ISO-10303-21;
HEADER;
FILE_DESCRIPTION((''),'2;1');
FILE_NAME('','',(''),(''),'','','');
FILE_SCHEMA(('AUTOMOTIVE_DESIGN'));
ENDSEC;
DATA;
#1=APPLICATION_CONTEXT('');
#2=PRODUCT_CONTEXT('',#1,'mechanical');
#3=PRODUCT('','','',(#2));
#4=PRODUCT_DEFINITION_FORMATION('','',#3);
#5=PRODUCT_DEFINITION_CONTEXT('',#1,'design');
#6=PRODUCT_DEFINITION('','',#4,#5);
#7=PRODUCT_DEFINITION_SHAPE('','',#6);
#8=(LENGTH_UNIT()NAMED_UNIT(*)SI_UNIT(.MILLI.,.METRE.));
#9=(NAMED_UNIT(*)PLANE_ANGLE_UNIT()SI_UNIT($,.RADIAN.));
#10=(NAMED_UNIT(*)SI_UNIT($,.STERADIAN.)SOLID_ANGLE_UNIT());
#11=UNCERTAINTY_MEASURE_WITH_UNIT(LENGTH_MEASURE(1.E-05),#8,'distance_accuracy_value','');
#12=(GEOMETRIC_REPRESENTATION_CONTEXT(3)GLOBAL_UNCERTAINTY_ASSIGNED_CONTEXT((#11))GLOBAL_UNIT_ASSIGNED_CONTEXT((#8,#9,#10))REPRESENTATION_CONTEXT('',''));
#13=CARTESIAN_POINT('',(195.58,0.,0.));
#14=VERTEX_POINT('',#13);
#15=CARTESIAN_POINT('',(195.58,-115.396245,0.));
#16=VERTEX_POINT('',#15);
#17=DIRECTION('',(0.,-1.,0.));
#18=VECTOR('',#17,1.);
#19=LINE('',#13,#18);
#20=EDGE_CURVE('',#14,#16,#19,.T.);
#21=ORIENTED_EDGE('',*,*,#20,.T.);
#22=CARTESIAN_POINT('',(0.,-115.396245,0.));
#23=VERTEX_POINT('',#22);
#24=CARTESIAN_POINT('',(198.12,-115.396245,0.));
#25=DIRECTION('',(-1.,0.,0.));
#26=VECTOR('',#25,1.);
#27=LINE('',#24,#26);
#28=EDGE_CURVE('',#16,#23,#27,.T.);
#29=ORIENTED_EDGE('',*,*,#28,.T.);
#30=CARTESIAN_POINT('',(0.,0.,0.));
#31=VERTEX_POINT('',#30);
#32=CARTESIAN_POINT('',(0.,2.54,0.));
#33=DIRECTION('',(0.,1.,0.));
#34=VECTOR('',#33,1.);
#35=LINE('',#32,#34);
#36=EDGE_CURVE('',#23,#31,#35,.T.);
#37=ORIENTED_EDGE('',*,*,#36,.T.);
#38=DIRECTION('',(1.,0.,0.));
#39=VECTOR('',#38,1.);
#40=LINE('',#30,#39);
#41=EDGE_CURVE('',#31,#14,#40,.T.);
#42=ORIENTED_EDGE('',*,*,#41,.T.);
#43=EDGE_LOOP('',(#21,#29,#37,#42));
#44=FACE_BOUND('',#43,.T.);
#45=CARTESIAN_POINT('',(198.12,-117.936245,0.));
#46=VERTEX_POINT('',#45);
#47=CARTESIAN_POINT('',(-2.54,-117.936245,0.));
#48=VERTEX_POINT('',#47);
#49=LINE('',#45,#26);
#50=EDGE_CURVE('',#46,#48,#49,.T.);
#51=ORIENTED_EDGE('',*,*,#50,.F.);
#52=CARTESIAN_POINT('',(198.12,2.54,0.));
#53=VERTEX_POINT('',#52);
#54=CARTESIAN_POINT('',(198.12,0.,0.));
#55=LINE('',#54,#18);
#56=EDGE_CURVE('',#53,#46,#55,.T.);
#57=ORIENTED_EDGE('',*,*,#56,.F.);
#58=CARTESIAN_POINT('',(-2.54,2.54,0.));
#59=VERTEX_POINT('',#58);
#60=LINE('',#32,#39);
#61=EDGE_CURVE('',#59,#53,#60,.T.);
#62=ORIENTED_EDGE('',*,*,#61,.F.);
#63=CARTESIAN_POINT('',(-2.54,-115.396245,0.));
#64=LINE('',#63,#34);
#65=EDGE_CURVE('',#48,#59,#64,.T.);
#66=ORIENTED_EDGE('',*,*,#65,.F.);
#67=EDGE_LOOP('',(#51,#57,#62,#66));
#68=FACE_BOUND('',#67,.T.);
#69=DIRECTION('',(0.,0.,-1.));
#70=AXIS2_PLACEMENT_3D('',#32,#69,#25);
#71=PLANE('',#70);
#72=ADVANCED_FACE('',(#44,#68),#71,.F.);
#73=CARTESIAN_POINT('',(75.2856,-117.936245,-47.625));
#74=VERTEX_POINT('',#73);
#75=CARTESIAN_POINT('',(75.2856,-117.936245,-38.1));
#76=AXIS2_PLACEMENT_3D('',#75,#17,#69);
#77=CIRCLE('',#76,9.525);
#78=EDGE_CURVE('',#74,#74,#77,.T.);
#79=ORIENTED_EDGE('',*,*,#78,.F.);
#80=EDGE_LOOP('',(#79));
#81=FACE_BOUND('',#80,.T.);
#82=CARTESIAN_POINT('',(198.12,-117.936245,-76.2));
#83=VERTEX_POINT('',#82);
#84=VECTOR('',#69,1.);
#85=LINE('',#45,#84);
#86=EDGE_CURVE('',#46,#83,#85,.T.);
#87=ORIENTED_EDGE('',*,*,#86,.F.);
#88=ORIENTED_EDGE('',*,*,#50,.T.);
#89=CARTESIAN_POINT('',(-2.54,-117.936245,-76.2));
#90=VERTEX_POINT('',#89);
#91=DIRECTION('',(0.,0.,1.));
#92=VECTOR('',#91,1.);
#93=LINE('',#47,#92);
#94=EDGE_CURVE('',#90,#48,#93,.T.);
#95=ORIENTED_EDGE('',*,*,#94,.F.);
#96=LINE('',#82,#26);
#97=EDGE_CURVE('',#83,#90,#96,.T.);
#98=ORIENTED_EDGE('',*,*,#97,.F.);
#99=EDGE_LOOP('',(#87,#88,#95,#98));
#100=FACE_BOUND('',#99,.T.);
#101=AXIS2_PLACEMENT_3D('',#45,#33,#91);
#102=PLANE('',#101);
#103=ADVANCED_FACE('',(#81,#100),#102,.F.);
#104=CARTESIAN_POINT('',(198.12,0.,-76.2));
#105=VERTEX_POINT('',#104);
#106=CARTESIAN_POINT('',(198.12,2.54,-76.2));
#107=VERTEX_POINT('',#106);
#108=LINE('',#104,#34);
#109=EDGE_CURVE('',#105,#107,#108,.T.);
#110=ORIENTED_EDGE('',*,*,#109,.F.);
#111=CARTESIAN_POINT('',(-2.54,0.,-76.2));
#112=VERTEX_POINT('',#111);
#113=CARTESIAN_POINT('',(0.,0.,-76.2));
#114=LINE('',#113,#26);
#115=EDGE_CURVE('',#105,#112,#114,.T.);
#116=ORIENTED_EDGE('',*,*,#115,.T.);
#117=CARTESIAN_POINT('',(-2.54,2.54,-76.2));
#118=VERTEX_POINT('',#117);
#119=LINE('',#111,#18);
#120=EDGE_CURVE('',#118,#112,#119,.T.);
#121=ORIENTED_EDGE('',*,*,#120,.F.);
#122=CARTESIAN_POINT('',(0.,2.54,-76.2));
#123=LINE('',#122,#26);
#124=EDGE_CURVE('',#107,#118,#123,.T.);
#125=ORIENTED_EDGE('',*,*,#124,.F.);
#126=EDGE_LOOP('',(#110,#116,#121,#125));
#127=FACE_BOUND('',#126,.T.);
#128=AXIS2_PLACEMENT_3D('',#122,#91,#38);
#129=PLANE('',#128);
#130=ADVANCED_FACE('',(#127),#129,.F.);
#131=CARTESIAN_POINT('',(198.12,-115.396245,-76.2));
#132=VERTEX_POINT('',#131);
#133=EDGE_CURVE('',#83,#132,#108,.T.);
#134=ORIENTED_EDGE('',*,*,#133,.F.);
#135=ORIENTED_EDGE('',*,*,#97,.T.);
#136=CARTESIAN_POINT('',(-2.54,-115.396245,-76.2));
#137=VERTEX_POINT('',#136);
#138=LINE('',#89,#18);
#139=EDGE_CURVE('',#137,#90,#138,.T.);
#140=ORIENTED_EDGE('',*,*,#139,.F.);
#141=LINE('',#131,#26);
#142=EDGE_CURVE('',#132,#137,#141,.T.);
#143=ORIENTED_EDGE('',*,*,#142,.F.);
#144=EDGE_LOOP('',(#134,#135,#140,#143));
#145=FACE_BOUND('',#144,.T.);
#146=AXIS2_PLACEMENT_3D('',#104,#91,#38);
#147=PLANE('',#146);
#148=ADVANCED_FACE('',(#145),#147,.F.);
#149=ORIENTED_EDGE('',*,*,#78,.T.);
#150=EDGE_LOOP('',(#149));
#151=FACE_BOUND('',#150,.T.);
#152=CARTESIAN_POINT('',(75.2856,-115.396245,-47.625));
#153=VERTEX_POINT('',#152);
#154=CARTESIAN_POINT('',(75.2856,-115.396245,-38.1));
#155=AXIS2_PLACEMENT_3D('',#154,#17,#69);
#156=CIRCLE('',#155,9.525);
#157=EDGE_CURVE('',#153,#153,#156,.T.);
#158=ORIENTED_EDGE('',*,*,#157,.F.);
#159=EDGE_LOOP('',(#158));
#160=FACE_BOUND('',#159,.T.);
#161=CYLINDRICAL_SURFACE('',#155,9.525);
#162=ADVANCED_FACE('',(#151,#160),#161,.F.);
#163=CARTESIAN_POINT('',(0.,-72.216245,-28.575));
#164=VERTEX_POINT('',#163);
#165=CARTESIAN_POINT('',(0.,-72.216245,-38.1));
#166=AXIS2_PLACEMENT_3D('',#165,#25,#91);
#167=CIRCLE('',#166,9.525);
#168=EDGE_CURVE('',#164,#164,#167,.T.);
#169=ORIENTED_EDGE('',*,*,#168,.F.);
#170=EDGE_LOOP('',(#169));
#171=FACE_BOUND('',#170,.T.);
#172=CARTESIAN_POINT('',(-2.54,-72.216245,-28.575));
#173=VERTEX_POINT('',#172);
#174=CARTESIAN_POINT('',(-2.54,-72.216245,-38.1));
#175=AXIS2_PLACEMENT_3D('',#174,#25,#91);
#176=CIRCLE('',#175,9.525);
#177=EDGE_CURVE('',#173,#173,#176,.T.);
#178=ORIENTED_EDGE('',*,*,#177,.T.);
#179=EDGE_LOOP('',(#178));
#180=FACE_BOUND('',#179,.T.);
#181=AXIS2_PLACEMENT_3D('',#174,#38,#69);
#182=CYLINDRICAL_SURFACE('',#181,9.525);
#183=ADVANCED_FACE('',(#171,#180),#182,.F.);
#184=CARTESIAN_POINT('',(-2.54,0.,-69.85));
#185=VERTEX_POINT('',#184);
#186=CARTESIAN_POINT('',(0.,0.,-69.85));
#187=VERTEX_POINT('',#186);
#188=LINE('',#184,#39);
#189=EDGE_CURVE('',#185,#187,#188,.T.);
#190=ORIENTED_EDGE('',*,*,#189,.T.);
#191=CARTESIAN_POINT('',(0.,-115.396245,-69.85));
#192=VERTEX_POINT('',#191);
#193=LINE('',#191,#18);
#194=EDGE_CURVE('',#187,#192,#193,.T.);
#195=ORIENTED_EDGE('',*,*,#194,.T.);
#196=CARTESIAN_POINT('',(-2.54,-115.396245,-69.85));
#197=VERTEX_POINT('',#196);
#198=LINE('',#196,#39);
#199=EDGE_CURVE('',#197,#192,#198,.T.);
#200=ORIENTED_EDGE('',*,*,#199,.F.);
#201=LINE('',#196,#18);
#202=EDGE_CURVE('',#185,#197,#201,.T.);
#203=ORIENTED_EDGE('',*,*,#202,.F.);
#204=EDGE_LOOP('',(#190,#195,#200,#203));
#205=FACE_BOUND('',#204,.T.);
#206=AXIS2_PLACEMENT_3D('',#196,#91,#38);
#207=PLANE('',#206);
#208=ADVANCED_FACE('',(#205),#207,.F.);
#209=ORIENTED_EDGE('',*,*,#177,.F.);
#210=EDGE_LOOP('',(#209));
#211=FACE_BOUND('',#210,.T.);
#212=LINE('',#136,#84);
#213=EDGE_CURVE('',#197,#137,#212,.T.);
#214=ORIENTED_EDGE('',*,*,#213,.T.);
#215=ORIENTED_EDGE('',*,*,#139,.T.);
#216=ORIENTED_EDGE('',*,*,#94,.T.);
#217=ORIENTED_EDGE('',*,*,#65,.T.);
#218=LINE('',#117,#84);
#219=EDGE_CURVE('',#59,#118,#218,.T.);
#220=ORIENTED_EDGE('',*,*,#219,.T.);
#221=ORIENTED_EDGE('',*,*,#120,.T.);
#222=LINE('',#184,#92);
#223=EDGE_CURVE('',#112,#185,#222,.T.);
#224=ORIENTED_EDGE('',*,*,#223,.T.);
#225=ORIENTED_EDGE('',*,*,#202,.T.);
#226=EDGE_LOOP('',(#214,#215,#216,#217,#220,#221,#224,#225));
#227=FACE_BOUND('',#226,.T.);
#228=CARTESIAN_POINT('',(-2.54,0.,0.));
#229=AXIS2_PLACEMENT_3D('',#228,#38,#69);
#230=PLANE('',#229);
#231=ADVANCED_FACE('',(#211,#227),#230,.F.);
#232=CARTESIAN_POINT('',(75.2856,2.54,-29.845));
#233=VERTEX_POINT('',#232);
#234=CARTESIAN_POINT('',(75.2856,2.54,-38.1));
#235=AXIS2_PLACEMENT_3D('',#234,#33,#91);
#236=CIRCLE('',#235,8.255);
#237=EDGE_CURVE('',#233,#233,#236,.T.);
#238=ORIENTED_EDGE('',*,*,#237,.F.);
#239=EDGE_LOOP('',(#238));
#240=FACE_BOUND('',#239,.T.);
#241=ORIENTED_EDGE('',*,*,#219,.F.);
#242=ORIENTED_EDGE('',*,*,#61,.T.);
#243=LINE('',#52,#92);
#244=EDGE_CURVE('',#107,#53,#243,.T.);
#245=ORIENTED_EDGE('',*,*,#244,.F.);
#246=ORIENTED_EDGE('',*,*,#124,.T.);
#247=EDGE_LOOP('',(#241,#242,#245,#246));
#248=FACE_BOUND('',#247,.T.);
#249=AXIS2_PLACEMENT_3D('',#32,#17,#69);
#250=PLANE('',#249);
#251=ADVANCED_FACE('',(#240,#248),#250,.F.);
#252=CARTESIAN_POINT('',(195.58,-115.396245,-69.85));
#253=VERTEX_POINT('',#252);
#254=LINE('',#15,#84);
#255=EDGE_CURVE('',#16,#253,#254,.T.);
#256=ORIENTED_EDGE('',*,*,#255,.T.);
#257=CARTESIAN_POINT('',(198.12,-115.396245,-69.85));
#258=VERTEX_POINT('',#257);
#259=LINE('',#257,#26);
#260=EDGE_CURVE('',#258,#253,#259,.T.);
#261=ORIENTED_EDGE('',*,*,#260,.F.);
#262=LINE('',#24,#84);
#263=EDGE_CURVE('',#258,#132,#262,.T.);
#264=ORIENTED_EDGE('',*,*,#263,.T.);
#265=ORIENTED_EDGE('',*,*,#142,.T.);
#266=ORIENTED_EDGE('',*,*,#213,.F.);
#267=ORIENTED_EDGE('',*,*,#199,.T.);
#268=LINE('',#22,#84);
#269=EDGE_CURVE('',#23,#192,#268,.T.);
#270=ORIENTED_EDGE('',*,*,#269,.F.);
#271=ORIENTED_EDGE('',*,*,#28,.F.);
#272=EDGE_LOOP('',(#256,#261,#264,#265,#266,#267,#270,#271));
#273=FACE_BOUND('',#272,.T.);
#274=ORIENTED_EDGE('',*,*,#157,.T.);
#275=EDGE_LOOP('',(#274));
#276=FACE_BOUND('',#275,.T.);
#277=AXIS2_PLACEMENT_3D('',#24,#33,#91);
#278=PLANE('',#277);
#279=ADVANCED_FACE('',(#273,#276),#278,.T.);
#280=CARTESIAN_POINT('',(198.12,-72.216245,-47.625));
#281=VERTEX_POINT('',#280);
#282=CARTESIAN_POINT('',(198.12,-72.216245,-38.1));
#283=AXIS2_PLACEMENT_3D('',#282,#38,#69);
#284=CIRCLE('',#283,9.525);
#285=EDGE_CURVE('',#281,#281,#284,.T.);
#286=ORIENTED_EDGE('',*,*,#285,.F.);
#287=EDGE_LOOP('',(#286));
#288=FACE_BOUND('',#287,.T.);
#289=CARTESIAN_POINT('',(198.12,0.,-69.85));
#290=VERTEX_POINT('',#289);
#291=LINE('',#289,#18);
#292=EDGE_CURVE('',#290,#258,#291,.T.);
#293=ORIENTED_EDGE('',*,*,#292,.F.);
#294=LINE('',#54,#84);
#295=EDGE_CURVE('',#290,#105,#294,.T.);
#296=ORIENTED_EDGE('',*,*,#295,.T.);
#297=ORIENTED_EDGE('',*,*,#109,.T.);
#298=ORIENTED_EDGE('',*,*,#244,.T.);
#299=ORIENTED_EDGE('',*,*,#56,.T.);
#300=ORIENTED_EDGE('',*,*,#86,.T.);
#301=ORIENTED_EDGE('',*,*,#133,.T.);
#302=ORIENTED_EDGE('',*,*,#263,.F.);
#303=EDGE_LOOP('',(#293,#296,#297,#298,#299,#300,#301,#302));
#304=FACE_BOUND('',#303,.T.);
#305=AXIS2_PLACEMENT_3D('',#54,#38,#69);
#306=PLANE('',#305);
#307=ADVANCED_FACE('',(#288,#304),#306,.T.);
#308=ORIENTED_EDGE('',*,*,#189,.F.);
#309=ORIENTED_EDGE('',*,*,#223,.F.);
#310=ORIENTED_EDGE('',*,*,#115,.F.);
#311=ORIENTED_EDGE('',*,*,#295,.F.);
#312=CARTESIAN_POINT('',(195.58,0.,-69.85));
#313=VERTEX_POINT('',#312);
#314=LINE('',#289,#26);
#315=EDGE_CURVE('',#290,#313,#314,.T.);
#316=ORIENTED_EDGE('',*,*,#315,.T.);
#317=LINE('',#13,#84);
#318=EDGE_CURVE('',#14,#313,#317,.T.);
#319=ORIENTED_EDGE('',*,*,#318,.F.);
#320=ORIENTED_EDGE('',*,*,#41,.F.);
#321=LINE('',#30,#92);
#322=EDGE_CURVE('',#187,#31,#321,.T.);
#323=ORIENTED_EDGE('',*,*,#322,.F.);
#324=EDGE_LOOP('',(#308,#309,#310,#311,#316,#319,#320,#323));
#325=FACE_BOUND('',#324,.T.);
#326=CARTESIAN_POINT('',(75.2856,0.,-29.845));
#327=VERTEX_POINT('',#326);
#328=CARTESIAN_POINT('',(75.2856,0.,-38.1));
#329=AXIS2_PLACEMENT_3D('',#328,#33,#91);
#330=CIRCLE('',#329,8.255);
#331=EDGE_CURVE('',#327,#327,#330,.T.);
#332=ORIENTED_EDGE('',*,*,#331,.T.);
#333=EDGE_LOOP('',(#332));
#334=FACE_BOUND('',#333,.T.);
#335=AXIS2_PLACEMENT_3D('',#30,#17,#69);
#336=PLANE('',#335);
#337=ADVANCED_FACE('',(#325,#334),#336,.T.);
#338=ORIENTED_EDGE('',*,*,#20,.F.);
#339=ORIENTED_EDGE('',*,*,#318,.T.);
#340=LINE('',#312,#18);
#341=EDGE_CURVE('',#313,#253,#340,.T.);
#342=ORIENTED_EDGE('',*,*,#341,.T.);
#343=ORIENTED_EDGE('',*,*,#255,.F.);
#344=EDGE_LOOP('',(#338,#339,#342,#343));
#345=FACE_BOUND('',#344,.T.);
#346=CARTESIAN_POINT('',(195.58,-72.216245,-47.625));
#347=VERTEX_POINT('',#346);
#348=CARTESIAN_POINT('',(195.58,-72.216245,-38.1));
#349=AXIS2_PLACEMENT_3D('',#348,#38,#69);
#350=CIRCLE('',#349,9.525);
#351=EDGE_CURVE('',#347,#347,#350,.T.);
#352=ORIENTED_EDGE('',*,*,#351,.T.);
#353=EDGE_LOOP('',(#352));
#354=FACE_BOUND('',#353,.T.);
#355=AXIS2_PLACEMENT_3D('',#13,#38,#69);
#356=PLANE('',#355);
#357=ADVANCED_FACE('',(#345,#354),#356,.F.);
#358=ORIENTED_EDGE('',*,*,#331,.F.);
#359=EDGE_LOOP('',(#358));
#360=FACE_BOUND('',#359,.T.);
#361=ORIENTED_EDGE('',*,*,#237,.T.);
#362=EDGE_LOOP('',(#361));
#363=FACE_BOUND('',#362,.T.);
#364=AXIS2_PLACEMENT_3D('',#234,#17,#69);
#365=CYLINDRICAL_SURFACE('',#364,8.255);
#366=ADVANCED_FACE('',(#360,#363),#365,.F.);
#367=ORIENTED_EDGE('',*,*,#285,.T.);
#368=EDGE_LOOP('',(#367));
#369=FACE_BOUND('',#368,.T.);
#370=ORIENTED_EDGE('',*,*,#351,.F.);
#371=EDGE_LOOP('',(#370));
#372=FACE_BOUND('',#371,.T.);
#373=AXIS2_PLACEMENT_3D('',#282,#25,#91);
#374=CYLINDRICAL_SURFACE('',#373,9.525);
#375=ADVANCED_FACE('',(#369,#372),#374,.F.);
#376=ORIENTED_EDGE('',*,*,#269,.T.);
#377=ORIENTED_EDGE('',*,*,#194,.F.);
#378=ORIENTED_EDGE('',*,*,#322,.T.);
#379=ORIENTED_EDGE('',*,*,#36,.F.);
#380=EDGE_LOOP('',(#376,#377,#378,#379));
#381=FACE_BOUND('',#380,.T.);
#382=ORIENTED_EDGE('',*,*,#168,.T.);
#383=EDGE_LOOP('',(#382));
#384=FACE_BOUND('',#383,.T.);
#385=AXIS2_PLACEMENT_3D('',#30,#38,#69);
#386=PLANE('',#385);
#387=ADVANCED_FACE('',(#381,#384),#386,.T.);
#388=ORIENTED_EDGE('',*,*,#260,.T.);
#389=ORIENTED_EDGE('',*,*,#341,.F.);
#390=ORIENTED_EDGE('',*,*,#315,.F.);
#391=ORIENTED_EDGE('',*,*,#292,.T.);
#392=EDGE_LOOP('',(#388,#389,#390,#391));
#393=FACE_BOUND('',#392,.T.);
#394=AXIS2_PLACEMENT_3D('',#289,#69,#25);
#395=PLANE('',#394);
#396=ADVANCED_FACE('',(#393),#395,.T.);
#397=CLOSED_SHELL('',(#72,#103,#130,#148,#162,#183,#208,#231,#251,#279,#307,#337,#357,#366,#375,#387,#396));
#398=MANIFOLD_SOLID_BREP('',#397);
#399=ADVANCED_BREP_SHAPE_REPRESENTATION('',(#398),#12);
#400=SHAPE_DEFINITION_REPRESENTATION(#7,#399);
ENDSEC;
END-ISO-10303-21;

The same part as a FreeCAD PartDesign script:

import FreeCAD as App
import Part
import Sketcher
Q = App.Units.Quantity


def add_polygon(sketch, points):
    """Adds a closed chain of lines whose ends are joined by coincident constraints."""
    first, n = sketch.GeometryCount, len(points)
    for a, b in zip(points, points[1:] + points[:1]):
        sketch.addGeometry(Part.LineSegment(App.Vector(*a, 0), App.Vector(*b, 0)), False)
    for i in range(n):
        sketch.addConstraint(Sketcher.Constraint("Coincident", first + i, 2, first + (i + 1) % n, 1))

doc = App.newDocument("Part")
body = doc.addObject("PartDesign::Body", "Body")

sketch1 = body.newObject("Sketcher::SketchObject", "Sketch")
sketch1.AttachmentSupport = (doc.getObject("XZ_Plane"), [""])
sketch1.MapMode = "FlatFace"
add_polygon(sketch1, [(0, -76), (0, 0), (196, 0), (196, -76)])
sketch1.addGeometry(Part.Circle(App.Vector(75, -38, 0), App.Vector(0, 0, 1), 8), False)
sketch1.addConstraint([
    Sketcher.Constraint("Vertical", 0),
    Sketcher.Constraint("Horizontal", 1),
    Sketcher.Constraint("Vertical", 2),
    Sketcher.Constraint("Horizontal", 3),
    Sketcher.Constraint("Coincident", 0, 2, -1, 1),
    Sketcher.Constraint("Diameter", 4, Q("0.65 in")),
    Sketcher.Constraint("DistanceY", 0, 1, 0, 2, Q("3 in")),
    Sketcher.Constraint("DistanceX", 1, 1, 1, 2, Q("7.7 in")),
    Sketcher.Constraint("DistanceY", 4, 3, -1, 1, Q("1.5 in")),
    Sketcher.Constraint("DistanceX", -1, 1, 4, 3, Q("2.964 in")),
])
pad1 = body.newObject("PartDesign::Pad", "Pad")
pad1.Profile = sketch1
pad1.Length = Q("0.1 in")
pad1.Reversed = True

sketch2 = body.newObject("Sketcher::SketchObject", "Sketch001")
sketch2.AttachmentSupport = (doc.getObject("YZ_Plane"), [""])
sketch2.MapMode = "FlatFace"
sketch2.AttachmentOffset = App.Placement(App.Vector(0, 0, 7.7 * 25.4), App.Rotation())
add_polygon(sketch2, [(-115.4, -69.8), (0, -69.8), (0, -76.2), (2.5, -76.2), (2.5, 0), (-117.9, 0), (-117.9, -76.2), (-115.4, -76.2)])
sketch2.addGeometry(Part.Circle(App.Vector(-72.2, -38.1, 0), App.Vector(0, 0, 1), 9.5), False)
sketch2.addConstraint([
    Sketcher.Constraint("Horizontal", 0),
    Sketcher.Constraint("Vertical", 1),
    Sketcher.Constraint("Horizontal", 2),
    Sketcher.Constraint("Vertical", 3),
    Sketcher.Constraint("Horizontal", 4),
    Sketcher.Constraint("Vertical", 5),
    Sketcher.Constraint("Horizontal", 6),
    Sketcher.Constraint("Vertical", 7),
    Sketcher.Constraint("PointOnObject", 0, 2, -2),
    Sketcher.Constraint("PointOnObject", 3, 2, -1),
    Sketcher.Constraint("Horizontal", 2, 2, 5, 2),
    Sketcher.Constraint("Equal", 2, 6),
    Sketcher.Constraint("Diameter", 8, Q("0.75 in")),
    Sketcher.Constraint("DistanceY", 3, 1, 3, 2, Q("3 in")),
    Sketcher.Constraint("DistanceX", 2, 1, 2, 2, Q("0.1 in")),
    Sketcher.Constraint("DistanceY", 1, 2, 1, 1, Q("0.25 in")),
    Sketcher.Constraint("DistanceY", 8, 3, -1, 1, Q("1.5 in")),
    Sketcher.Constraint("DistanceX", 4, 2, 8, 3, Q("1.8 in")),
    Sketcher.Constraint("DistanceX", 0, 1, 0, 2, Q("115.396245 mm")),
])
pad2 = body.newObject("PartDesign::Pad", "Pad001")
pad2.Profile = sketch2
pad2.Length = Q("0.1 in")

sketch3 = body.newObject("Sketcher::SketchObject", "Sketch002")
sketch3.AttachmentSupport = (doc.getObject("XZ_Plane"), [""])
sketch3.MapMode = "FlatFace"
sketch3.AttachmentOffset = App.Placement(App.Vector(0, 0, 117.936245), App.Rotation())
add_polygon(sketch3, [(198, 0), (0, 0), (0, -76), (198, -76)])
sketch3.addGeometry(Part.Circle(App.Vector(75, -38, 0), App.Vector(0, 0, 1), 10), False)
sketch3.addConstraint([
    Sketcher.Constraint("Horizontal", 0),
    Sketcher.Constraint("Vertical", 1),
    Sketcher.Constraint("Horizontal", 2),
    Sketcher.Constraint("Vertical", 3),
    Sketcher.Constraint("Coincident", 0, 2, -1, 1),
    Sketcher.Constraint("Diameter", 4, Q("0.75 in")),
    Sketcher.Constraint("DistanceY", 1, 2, 1, 1, Q("3 in")),
    Sketcher.Constraint("DistanceX", 0, 2, 0, 1, Q("7.8 in")),
    Sketcher.Constraint("DistanceY", 4, 3, -1, 1, Q("1.5 in")),
    Sketcher.Constraint("DistanceX", -1, 1, 4, 3, Q("2.964 in")),
])
pad3 = body.newObject("PartDesign::Pad", "Pad002")
pad3.Profile = sketch3
pad3.Length = Q("0.1 in")
pad3.Reversed = True

sketch4 = body.newObject("Sketcher::SketchObject", "Sketch003")
sketch4.AttachmentSupport = (doc.getObject("YZ_Plane"), [""])
sketch4.MapMode = "FlatFace"
add_polygon(sketch4, [(-117.9, 0), (2.5, 0), (2.5, -76.2), (0, -76.2), (0, -69.8), (-115.4, -69.8), (-115.4, -76.2), (-117.9, -76.2)])
sketch4.addGeometry(Part.Circle(App.Vector(-72.2, -38.1, 0), App.Vector(0, 0, 1), 9.5), False)
sketch4.addConstraint([
    Sketcher.Constraint("Horizontal", 0),
    Sketcher.Constraint("Vertical", 1),
    Sketcher.Constraint("Horizontal", 2),
    Sketcher.Constraint("Vertical", 3),
    Sketcher.Constraint("Horizontal", 4),
    Sketcher.Constraint("Vertical", 5),
    Sketcher.Constraint("Horizontal", 6),
    Sketcher.Constraint("Vertical", 7),
    Sketcher.Constraint("PointOnObject", 0, 2, -1),
    Sketcher.Constraint("PointOnObject", 2, 2, -2),
    Sketcher.Constraint("Horizontal", 2, 2, 5, 2),
    Sketcher.Constraint("Equal", 2, 6),
    Sketcher.Constraint("Diameter", 8, Q("0.75 in")),
    Sketcher.Constraint("DistanceY", 1, 2, 1, 1, Q("3 in")),
    Sketcher.Constraint("DistanceX", 2, 2, 2, 1, Q("0.1 in")),
    Sketcher.Constraint("DistanceY", 3, 1, 3, 2, Q("0.25 in")),
    Sketcher.Constraint("DistanceY", 8, 3, -1, 1, Q("1.5 in")),
    Sketcher.Constraint("DistanceX", 4, 2, 8, 3, Q("1.7 in")),
    Sketcher.Constraint("DistanceX", 0, 1, 0, 2, Q("120.476245 mm")),
])
pad4 = body.newObject("PartDesign::Pad", "Pad003")
pad4.Profile = sketch4
pad4.Length = Q("0.1 in")
pad4.Reversed = True

doc.recompute()
